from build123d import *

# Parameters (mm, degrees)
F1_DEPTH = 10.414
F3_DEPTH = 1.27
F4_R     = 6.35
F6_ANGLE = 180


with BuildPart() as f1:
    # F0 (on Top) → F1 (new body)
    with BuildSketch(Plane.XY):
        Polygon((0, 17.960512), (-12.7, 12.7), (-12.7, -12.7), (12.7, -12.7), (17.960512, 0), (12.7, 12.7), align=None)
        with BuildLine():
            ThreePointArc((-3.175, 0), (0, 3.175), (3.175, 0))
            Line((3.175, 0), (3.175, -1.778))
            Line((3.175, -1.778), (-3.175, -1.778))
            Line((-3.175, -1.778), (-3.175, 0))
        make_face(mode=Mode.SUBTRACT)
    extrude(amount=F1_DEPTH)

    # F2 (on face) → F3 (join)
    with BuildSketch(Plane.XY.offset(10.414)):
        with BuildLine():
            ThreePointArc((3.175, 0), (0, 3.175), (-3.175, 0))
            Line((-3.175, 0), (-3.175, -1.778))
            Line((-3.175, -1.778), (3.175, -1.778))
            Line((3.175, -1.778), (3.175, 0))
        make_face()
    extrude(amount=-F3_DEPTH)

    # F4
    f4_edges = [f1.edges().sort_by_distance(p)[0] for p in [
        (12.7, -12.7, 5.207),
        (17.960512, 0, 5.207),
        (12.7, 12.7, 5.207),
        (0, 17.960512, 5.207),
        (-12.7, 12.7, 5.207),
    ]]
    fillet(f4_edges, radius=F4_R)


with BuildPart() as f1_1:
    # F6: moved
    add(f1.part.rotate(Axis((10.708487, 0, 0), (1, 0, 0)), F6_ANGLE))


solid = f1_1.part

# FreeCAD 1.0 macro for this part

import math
import FreeCAD as App
import Part
import Sketcher
Q = App.Units.Quantity


def edges_at(feature, points):
    """Names of the edges that pass closest to the given points."""
    edges = feature.Shape.Edges
    near = lambda p: min(range(len(edges)), key=lambda i: edges[i].distToShape(Part.Vertex(*p))[0])
    return sorted({f"Edge{near(p) + 1}" for p in points})


def add_polygon(sketch, points):
    """Adds a closed chain of lines whose ends are joined by coincident constraints."""
    first, n = sketch.GeometryCount, len(points)
    for a, b in zip(points, points[1:] + points[:1]):
        sketch.addGeometry(Part.LineSegment(App.Vector(*a, 0), App.Vector(*b, 0)), False)
    for i in range(n):
        sketch.addConstraint(Sketcher.Constraint("Coincident", first + i, 2, first + (i + 1) % n, 1))

doc = App.newDocument("Part")
body = doc.addObject("PartDesign::Body", "Body")

# Sketch on XY plane
sketch1 = body.newObject("Sketcher::SketchObject", "Sketch")
sketch1.AttachmentSupport = (doc.getObject("XY_Plane"), [""])
sketch1.MapMode = "FlatFace"
add_polygon(sketch1, [(0, 18), (-12.7, 12.7), (-12.7, -12.7), (12.7, -12.7), (18, 0), (12.7, 12.7)])  # lines 0-5
sketch1.addGeometry(Part.LineSegment(App.Vector(-3.2, -1.8, 0), App.Vector(-3.2, 0, 0)), False)  # 6
sketch1.addGeometry(Part.ArcOfCircle(Part.Circle(App.Vector(0, 0, 0), App.Vector(0, 0, 1), 3.2), math.radians(0), math.radians(180)), False)  # 7
sketch1.addGeometry(Part.LineSegment(App.Vector(3.2, 0, 0), App.Vector(3.2, -1.8, 0)), False)  # 8
sketch1.addGeometry(Part.LineSegment(App.Vector(3.2, -1.8, 0), App.Vector(-3.2, -1.8, 0)), False)  # 9
sketch1.addConstraint([
    Sketcher.Constraint("Tangent", 6, 2, 7, 2),
    Sketcher.Constraint("Tangent", 7, 1, 8, 1),
    Sketcher.Constraint("Coincident", 8, 2, 9, 1),
    Sketcher.Constraint("Coincident", 9, 2, 6, 1),
    Sketcher.Constraint("Vertical", 1),
    Sketcher.Constraint("Horizontal", 2),
    Sketcher.Constraint("Vertical", 6),
    Sketcher.Constraint("Vertical", 8),
    Sketcher.Constraint("Horizontal", 9),
    Sketcher.Constraint("Coincident", 7, 3, -1, 1),
    Sketcher.Constraint("Symmetric", 0, 2, 2, 2, -1, 1),
    Sketcher.Constraint("Symmetric", 1, 2, 4, 2, -1, 1),
    Sketcher.Constraint("PointOnObject", 3, 2, -1),
    Sketcher.Constraint("PointOnObject", 5, 2, -2),
    Sketcher.Constraint("Perpendicular", 0, 4),
    Sketcher.Constraint("Equal", 2, 1),
    Sketcher.Constraint("DistanceX", 2, 1, 2, 2, Q("1 in")),
    Sketcher.Constraint("Radius", 7, Q("0.125 in")),
    Sketcher.Constraint("DistanceY", 6, 1, 6, 2, Q("0.07 in")),
    Sketcher.Constraint("Angle", 0, Q("-157.500001 deg")),
])
pad1 = body.newObject("PartDesign::Pad", "Pad")
pad1.Profile = sketch1
pad1.Length = Q("0.41 in")

# Sketch on XY plane
sketch2 = body.newObject("Sketcher::SketchObject", "Sketch001")
sketch2.AttachmentSupport = (doc.getObject("XY_Plane"), [""])
sketch2.MapMode = "FlatFace"
sketch2.AttachmentOffset = App.Placement(App.Vector(0, 0, 0.41 * 25.4), App.Rotation())
sketch2.addGeometry([
    Part.ArcOfCircle(Part.Circle(App.Vector(0, 0, 0), App.Vector(0, 0, 1), 3.2), math.radians(0), math.radians(180)),
    Part.LineSegment(App.Vector(-3.2, 0, 0), App.Vector(-3.2, -1.8, 0)),
    Part.LineSegment(App.Vector(-3.2, -1.8, 0), App.Vector(3.2, -1.8, 0)),
    Part.LineSegment(App.Vector(3.2, -1.8, 0), App.Vector(3.2, 0, 0)),
], False)
sketch2.addConstraint([
    Sketcher.Constraint("Tangent", 0, 2, 1, 1),
    Sketcher.Constraint("Coincident", 1, 2, 2, 1),
    Sketcher.Constraint("Coincident", 2, 2, 3, 1),
    Sketcher.Constraint("Tangent", 3, 2, 0, 1),
    Sketcher.Constraint("Vertical", 1),
    Sketcher.Constraint("Horizontal", 2),
    Sketcher.Constraint("Vertical", 3),
    Sketcher.Constraint("Coincident", 0, 3, -1, 1),
    Sketcher.Constraint("Radius", 0, Q("0.125 in")),
    Sketcher.Constraint("DistanceY", 1, 2, 1, 1, Q("0.07 in")),
])
pad2 = body.newObject("PartDesign::Pad", "Pad001")
pad2.Profile = sketch2
pad2.Length = Q("0.05 in")
pad2.Reversed = True
doc.recompute()

fillet = body.newObject("PartDesign::Fillet", "Fillet")
fillet.Base = (pad2, edges_at(pad2, [
    (12.7, -12.7, 5.207),
    (17.961, 0, 5.207),
    (12.7, 12.7, 5.207),
    (0, 17.961, 5.207),
    (-12.7, 12.7, 5.207),
]))
fillet.Radius = Q("0.25 in")
body2 = doc.addObject("PartDesign::Body", "Body001")
doc.recompute()

body.Placement = App.Placement(App.Vector(0, 0, 0), App.Rotation(App.Vector(1, 0, 0), 180))
boolean = body2.newObject("PartDesign::Boolean", "Boolean")
boolean.Type = "Fuse"
boolean.addObjects([body])

doc.recompute()
